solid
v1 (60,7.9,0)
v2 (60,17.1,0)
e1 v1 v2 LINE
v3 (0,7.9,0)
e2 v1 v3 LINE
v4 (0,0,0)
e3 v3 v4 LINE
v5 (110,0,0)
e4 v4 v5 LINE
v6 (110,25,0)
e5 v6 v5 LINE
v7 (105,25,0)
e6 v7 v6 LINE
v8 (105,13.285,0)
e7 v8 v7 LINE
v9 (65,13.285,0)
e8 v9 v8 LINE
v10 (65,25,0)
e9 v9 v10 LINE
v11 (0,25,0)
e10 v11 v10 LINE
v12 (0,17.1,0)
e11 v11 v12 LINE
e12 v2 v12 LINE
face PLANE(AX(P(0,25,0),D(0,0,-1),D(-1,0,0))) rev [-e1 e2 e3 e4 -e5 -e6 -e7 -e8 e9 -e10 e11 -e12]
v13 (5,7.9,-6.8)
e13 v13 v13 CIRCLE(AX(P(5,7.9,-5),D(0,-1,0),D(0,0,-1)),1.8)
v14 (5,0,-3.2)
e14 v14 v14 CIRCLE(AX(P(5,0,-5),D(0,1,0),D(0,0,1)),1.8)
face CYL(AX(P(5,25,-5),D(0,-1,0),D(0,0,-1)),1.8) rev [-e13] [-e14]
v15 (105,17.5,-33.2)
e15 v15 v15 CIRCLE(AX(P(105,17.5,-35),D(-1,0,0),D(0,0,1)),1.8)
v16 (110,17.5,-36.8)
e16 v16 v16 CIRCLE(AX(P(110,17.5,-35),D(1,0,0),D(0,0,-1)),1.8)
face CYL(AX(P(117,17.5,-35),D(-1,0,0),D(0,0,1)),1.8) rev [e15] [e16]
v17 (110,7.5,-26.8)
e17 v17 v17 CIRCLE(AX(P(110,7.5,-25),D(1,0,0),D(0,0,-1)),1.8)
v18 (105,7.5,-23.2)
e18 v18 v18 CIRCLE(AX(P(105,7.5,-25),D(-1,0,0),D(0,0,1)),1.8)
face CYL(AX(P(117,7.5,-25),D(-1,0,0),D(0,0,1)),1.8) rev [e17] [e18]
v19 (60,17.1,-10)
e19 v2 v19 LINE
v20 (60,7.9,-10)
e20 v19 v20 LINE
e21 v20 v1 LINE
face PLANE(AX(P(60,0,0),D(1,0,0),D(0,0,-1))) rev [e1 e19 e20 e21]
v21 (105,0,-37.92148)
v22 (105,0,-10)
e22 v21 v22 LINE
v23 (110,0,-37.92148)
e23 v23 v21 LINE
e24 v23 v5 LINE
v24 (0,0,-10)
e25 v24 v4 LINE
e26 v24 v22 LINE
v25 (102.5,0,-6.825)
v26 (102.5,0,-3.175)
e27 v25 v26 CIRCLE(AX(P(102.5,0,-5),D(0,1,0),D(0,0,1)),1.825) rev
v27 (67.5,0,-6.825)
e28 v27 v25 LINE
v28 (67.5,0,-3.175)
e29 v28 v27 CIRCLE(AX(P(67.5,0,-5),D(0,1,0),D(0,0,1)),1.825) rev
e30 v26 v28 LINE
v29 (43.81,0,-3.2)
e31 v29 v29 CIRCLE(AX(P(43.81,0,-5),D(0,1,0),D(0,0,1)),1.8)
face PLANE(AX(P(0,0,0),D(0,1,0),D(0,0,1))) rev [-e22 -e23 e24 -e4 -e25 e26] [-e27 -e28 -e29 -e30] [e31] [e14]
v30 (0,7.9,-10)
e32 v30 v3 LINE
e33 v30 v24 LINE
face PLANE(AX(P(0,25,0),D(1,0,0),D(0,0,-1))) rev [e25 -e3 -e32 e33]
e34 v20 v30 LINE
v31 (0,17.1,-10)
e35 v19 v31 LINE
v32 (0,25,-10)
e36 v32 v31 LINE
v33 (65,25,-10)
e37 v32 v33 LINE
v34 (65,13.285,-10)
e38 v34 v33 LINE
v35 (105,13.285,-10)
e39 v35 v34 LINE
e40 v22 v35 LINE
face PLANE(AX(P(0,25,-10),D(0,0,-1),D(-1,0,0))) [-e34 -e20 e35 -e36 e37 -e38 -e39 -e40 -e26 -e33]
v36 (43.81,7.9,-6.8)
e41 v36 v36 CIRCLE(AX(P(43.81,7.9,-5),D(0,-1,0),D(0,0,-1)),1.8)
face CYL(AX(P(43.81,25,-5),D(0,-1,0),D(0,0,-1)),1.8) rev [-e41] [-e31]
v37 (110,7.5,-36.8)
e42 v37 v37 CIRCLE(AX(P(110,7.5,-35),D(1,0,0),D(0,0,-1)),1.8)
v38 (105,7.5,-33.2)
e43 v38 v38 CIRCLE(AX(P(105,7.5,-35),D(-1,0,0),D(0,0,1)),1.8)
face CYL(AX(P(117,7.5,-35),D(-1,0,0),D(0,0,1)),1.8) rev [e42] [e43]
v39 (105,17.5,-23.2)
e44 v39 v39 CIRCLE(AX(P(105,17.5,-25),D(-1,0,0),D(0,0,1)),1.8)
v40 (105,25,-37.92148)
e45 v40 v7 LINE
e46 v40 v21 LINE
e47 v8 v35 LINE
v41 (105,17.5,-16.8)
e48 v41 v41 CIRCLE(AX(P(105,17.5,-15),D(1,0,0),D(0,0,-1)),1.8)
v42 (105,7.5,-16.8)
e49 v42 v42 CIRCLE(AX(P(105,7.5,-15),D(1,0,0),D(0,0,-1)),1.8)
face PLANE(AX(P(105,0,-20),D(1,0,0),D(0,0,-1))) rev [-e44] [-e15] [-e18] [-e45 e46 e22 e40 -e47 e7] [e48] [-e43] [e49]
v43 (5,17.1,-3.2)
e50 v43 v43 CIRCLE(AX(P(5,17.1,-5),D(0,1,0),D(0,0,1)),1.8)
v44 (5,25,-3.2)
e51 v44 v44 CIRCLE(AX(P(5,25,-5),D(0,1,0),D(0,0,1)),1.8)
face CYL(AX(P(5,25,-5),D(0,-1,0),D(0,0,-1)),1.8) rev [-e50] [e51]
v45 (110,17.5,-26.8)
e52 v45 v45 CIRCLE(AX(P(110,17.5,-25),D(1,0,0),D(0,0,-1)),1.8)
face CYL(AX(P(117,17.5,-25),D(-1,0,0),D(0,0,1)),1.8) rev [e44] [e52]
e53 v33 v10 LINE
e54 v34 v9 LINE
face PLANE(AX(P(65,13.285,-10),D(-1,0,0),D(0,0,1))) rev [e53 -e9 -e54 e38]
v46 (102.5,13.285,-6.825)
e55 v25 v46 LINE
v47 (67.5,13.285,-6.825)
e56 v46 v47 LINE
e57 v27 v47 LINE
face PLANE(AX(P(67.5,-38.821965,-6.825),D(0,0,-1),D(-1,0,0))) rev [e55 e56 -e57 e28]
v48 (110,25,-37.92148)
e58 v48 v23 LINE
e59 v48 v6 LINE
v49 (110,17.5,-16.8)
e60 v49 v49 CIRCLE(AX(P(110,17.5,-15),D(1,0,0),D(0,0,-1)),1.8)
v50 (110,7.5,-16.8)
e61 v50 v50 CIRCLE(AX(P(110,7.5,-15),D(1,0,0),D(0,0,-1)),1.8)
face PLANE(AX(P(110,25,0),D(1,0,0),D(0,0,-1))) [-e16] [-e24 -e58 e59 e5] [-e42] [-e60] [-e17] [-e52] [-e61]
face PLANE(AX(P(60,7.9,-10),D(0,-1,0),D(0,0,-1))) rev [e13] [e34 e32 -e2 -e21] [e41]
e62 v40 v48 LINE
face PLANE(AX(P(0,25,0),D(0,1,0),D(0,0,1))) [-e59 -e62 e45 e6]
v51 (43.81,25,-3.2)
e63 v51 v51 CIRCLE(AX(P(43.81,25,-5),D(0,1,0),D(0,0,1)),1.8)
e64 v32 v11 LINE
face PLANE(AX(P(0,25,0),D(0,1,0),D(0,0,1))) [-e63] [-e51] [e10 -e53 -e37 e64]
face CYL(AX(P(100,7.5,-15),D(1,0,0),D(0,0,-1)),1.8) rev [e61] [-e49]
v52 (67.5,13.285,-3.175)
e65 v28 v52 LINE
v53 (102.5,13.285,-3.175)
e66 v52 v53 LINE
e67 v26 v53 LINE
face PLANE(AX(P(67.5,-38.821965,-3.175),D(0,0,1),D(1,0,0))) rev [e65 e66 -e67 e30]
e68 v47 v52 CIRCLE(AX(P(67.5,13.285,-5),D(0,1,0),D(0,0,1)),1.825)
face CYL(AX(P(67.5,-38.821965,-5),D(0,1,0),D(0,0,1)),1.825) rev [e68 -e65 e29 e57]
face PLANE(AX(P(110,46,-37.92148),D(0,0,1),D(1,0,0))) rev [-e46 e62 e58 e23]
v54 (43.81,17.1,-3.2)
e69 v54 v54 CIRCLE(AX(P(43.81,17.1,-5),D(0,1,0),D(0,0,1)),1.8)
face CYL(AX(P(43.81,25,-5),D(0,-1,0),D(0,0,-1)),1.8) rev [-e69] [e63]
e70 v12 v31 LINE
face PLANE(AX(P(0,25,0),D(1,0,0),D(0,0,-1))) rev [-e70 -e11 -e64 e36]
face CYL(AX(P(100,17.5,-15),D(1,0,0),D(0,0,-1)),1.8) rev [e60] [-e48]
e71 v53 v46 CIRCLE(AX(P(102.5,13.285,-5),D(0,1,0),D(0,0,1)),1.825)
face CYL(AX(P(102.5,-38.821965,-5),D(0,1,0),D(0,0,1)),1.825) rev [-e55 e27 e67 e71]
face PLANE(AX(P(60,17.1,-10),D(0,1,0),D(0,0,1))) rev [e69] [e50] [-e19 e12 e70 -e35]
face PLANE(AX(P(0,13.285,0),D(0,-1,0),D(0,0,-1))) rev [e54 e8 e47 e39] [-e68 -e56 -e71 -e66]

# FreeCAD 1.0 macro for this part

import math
import FreeCAD as App
import Part
import Sketcher

doc = App.newDocument("Part")
body = doc.addObject("PartDesign::Body", "Body")

# Sketch on XZ plane
sketch1 = doc.addObject("Sketcher::SketchObject", "Sketch")
body.addObject(sketch1)
sketch1.AttachmentSupport = (doc.XZ_Plane, [""])
sketch1.MapMode = "FlatFace"
sketch1.addGeometry([
    Part.LineSegment(App.Vector(0, -10, 0), App.Vector(0, 0, 0)),  # 0
    Part.LineSegment(App.Vector(0, 0, 0), App.Vector(110, 0, 0)),  # 1
    Part.LineSegment(App.Vector(110, 0, 0), App.Vector(110, -10, 0)),  # 2
    Part.LineSegment(App.Vector(110, -10, 0), App.Vector(0, -10, 0)),  # 3
    Part.Circle(App.Vector(5, -5, 0), App.Vector(0, 0, 1), 1.8),  # 4
    Part.Circle(App.Vector(43.8, -5, 0), App.Vector(0, 0, 1), 1.8),  # 5
], False)
sketch1.addConstraint([
    Sketcher.Constraint("Coincident", 0, 2, 1, 1),
    Sketcher.Constraint("Coincident", 1, 2, 2, 1),
    Sketcher.Constraint("Coincident", 2, 2, 3, 1),
    Sketcher.Constraint("Coincident", 3, 2, 0, 1),
    Sketcher.Constraint("Vertical", 0),
    Sketcher.Constraint("Horizontal", 1),
    Sketcher.Constraint("Vertical", 2),
    Sketcher.Constraint("Horizontal", 3),
    Sketcher.Constraint("Coincident", 0, 2, -1, 1),
    Sketcher.Constraint("Equal", 4, 5),
    Sketcher.Constraint("Horizontal", 4, 3, 5, 3),
    Sketcher.Constraint("Diameter", 4, 3.6),
    Sketcher.Constraint("DistanceX", 1, 1, 1, 2, 110.0),
    Sketcher.Constraint("DistanceY", 0, 1, 0, 2, 10.0),
    Sketcher.Constraint("DistanceX", -1, 1, 4, 3, 5.0),
    Sketcher.Constraint("DistanceY", 4, 3, -1, 1, 5.0),
    Sketcher.Constraint("DistanceX", -1, 1, 5, 3, 43.81),
])
pad1 = doc.addObject("PartDesign::Pad", "Pad")
body.addObject(pad1)
pad1.Profile = sketch1
pad1.Length = 25
pad1.Reversed = True

# Sketch on YZ plane
sketch2 = doc.addObject("Sketcher::SketchObject", "Sketch001")
body.addObject(sketch2)
sketch2.AttachmentSupport = (doc.YZ_Plane, [""])
sketch2.MapMode = "FlatFace"
sketch2.addGeometry([
    Part.LineSegment(App.Vector(17, -10, 0), App.Vector(8, -10, 0)),
    Part.LineSegment(App.Vector(8, -10, 0), App.Vector(8, 0, 0)),
    Part.LineSegment(App.Vector(8, 0, 0), App.Vector(17, 0, 0)),
    Part.LineSegment(App.Vector(17, 0, 0), App.Vector(17, -10, 0)),
], False)
sketch2.addConstraint([
    Sketcher.Constraint("Coincident", 0, 2, 1, 1),
    Sketcher.Constraint("Coincident", 1, 2, 2, 1),
    Sketcher.Constraint("Coincident", 2, 2, 3, 1),
    Sketcher.Constraint("Coincident", 3, 2, 0, 1),
    Sketcher.Constraint("Horizontal", 0),
    Sketcher.Constraint("Vertical", 1),
    Sketcher.Constraint("Horizontal", 2),
    Sketcher.Constraint("Vertical", 3),
    Sketcher.Constraint("PointOnObject", 1, 2, -1),
    Sketcher.Constraint("DistanceY", 1, 1, 1, 2, 10.0),
    Sketcher.Constraint("DistanceX", 0, 2, 0, 1, 9.2),
    Sketcher.Constraint("DistanceX", -1, 1, 0, 2, 7.9),
])
pocket1 = doc.addObject("PartDesign::Pocket", "Pocket")
body.addObject(pocket1)
pocket1.Profile = sketch2
pocket1.Length = 60
pocket1.Reversed = True

# Sketch on XY plane
sketch3 = doc.addObject("Sketcher::SketchObject", "Sketch002")
body.addObject(sketch3)
sketch3.AttachmentSupport = (doc.XY_Plane, [""])
sketch3.MapMode = "FlatFace"
sketch3.AttachmentOffset = App.Placement(App.Vector(0, 0, -10), App.Rotation())
sketch3.addGeometry([
    Part.LineSegment(App.Vector(110, 25, 0), App.Vector(110, 0, 0)),
    Part.LineSegment(App.Vector(110, 0, 0), App.Vector(105, 0, 0)),
    Part.LineSegment(App.Vector(105, 0, 0), App.Vector(105, 25, 0)),
    Part.LineSegment(App.Vector(105, 25, 0), App.Vector(110, 25, 0)),
], False)
sketch3.addConstraint([
    Sketcher.Constraint("Coincident", 0, 2, 1, 1),
    Sketcher.Constraint("Coincident", 1, 2, 2, 1),
    Sketcher.Constraint("Coincident", 2, 2, 3, 1),
    Sketcher.Constraint("Coincident", 3, 2, 0, 1),
    Sketcher.Constraint("Vertical", 0),
    Sketcher.Constraint("Horizontal", 1),
    Sketcher.Constraint("Vertical", 2),
    Sketcher.Constraint("Horizontal", 3),
    Sketcher.Constraint("PointOnObject", 0, 2, -1),
    Sketcher.Constraint("DistanceX", 1, 2, 1, 1, 5.0),
    Sketcher.Constraint("DistanceY", 0, 2, 0, 1, 25.0),
    Sketcher.Constraint("DistanceX", -1, 1, 0, 2, 110.0),
])
pad2 = doc.addObject("PartDesign::Pad", "Pad001")
body.addObject(pad2)
pad2.Profile = sketch3
pad2.Length = 10
pad2.Reversed = True

# Sketch on YZ plane
sketch4 = doc.addObject("Sketcher::SketchObject", "Sketch003")
body.addObject(sketch4)
sketch4.AttachmentSupport = (doc.YZ_Plane, [""])
sketch4.MapMode = "FlatFace"
sketch4.AttachmentOffset = App.Placement(App.Vector(0, 0, 110), App.Rotation())
sketch4.addGeometry([
    Part.Circle(App.Vector(7.5, -15, 0), App.Vector(0, 0, 1), 1.8),
    Part.Circle(App.Vector(17.5, -15, 0), App.Vector(0, 0, 1), 1.8),
], False)
sketch4.addConstraint([
    Sketcher.Constraint("Equal", 0, 1),
    Sketcher.Constraint("Horizontal", 0, 3, 1, 3),
    Sketcher.Constraint("Diameter", 0, 3.6),
    Sketcher.Constraint("DistanceY", 0, 3, -1, 1, 15.0),
    Sketcher.Constraint("DistanceX", 0, 3, 1, 3, 10.0),
    Sketcher.Constraint("DistanceX", -1, 1, 0, 3, 7.5),
])
pocket2 = doc.addObject("PartDesign::Pocket", "Pocket001")
body.addObject(pocket2)
pocket2.Profile = sketch4
pocket2.Length = 10

# Sketch on XY plane
sketch5 = doc.addObject("Sketcher::SketchObject", "Sketch004")
body.addObject(sketch5)
sketch5.AttachmentSupport = (doc.XY_Plane, [""])
sketch5.MapMode = "FlatFace"
sketch5.AttachmentOffset = App.Placement(App.Vector(0, 0, -20), App.Rotation())
sketch5.addGeometry([
    Part.LineSegment(App.Vector(110, 25, 0), App.Vector(110, 0, 0)),
    Part.LineSegment(App.Vector(110, 0, 0), App.Vector(105, 0, 0)),
    Part.LineSegment(App.Vector(105, 0, 0), App.Vector(105, 25, 0)),
    Part.LineSegment(App.Vector(105, 25, 0), App.Vector(110, 25, 0)),
], False)
sketch5.addConstraint([
    Sketcher.Constraint("Coincident", 0, 2, 1, 1),
    Sketcher.Constraint("Coincident", 1, 2, 2, 1),
    Sketcher.Constraint("Coincident", 2, 2, 3, 1),
    Sketcher.Constraint("Coincident", 3, 2, 0, 1),
    Sketcher.Constraint("Vertical", 0),
    Sketcher.Constraint("Horizontal", 1),
    Sketcher.Constraint("Vertical", 2),
    Sketcher.Constraint("Horizontal", 3),
    Sketcher.Constraint("PointOnObject", 0, 2, -1),
    Sketcher.Constraint("DistanceX", 1, 2, 1, 1, 5.0),
    Sketcher.Constraint("DistanceY", 0, 2, 0, 1, 25.0),
    Sketcher.Constraint("DistanceX", -1, 1, 0, 2, 110.0),
])
pad3 = doc.addObject("PartDesign::Pad", "Pad002")
body.addObject(pad3)
pad3.Profile = sketch5
pad3.Length = 20
pad3.Reversed = True

# Sketch on YZ plane
sketch6 = doc.addObject("Sketcher::SketchObject", "Sketch005")
body.addObject(sketch6)
sketch6.AttachmentSupport = (doc.YZ_Plane, [""])
sketch6.MapMode = "FlatFace"
sketch6.AttachmentOffset = App.Placement(App.Vector(0, 0, 105), App.Rotation())
sketch6.addGeometry([
    Part.Circle(App.Vector(17.5, -25, 0), App.Vector(0, 0, 1), 1.8),
    Part.Circle(App.Vector(7.5, -25, 0), App.Vector(0, 0, 1), 1.8),
    Part.Circle(App.Vector(17.5, -35, 0), App.Vector(0, 0, 1), 1.8),
    Part.Circle(App.Vector(7.5, -35, 0), App.Vector(0, 0, 1), 1.8),
], False)
sketch6.addConstraint([
    Sketcher.Constraint("Equal", 0, 1),
    Sketcher.Constraint("Equal", 1, 2),
    Sketcher.Constraint("Equal", 2, 3),
    Sketcher.Constraint("Horizontal", 0, 3, 1, 3),
    Sketcher.Constraint("Horizontal", 2, 3, 3, 3),
    Sketcher.Constraint("Vertical", 0, 3, 2, 3),
    Sketcher.Constraint("Vertical", 1, 3, 3, 3),
    Sketcher.Constraint("Diameter", 0, 3.6),
    Sketcher.Constraint("DistanceY", 0, 3, -1, 1, 25.0),
    Sketcher.Constraint("DistanceY", 2, 3, -1, 1, 35.0),
    Sketcher.Constraint("DistanceX", 1, 3, 0, 3, 10.0),
    Sketcher.Constraint("DistanceX", -1, 1, 0, 3, 17.5),
])
pocket3 = doc.addObject("PartDesign::Pocket", "Pocket002")
body.addObject(pocket3)
pocket3.Profile = sketch6
pocket3.Length = 12
pocket3.Reversed = True

# Sketch on XZ plane
sketch7 = doc.addObject("Sketcher::SketchObject", "Sketch006")
body.addObject(sketch7)
sketch7.AttachmentSupport = (doc.XZ_Plane, [""])
sketch7.MapMode = "FlatFace"
sketch7.addGeometry([
    Part.LineSegment(App.Vector(105, -37.9, 0), App.Vector(105, -40, 0)),
    Part.LineSegment(App.Vector(105, -40, 0), App.Vector(110, -40, 0)),
    Part.LineSegment(App.Vector(110, -40, 0), App.Vector(110, -37.9, 0)),
    Part.LineSegment(App.Vector(110, -37.9, 0), App.Vector(105, -37.9, 0)),
], False)
sketch7.addConstraint([
    Sketcher.Constraint("Coincident", 0, 2, 1, 1),
    Sketcher.Constraint("Coincident", 1, 2, 2, 1),
    Sketcher.Constraint("Coincident", 2, 2, 3, 1),
    Sketcher.Constraint("Coincident", 3, 2, 0, 1),
    Sketcher.Constraint("Vertical", 0),
    Sketcher.Constraint("Horizontal", 1),
    Sketcher.Constraint("Vertical", 2),
    Sketcher.Constraint("Horizontal", 3),
    Sketcher.Constraint("DistanceX", 1, 1, 1, 2, 5.0),
    Sketcher.Constraint("DistanceX", -1, 1, 0, 2, 105.0),
    Sketcher.Constraint("DistanceY", 0, 2, -1, 1, 40.0),
    Sketcher.Constraint("DistanceY", 0, 2, 0, 1, 2.07852),
])
pocket4 = doc.addObject("PartDesign::Pocket", "Pocket003")
body.addObject(pocket4)
pocket4.Profile = sketch7
pocket4.Length = 46

# Sketch on XZ plane
sketch8 = doc.addObject("Sketcher::SketchObject", "Sketch007")
body.addObject(sketch8)
sketch8.AttachmentSupport = (doc.XZ_Plane, [""])
sketch8.MapMode = "FlatFace"
sketch8.AttachmentOffset = App.Placement(App.Vector(0, 0, -25), App.Rotation())
sketch8.addGeometry([
    Part.LineSegment(App.Vector(65, -10, 0), App.Vector(65, 0, 0)),
    Part.LineSegment(App.Vector(65, 0, 0), App.Vector(105, 0, 0)),
    Part.LineSegment(App.Vector(105, 0, 0), App.Vector(105, -10, 0)),
    Part.LineSegment(App.Vector(105, -10, 0), App.Vector(65, -10, 0)),
], False)
sketch8.addConstraint([
    Sketcher.Constraint("Coincident", 0, 2, 1, 1),
    Sketcher.Constraint("Coincident", 1, 2, 2, 1),
    Sketcher.Constraint("Coincident", 2, 2, 3, 1),
    Sketcher.Constraint("Coincident", 3, 2, 0, 1),
    Sketcher.Constraint("Vertical", 0),
    Sketcher.Constraint("Horizontal", 1),
    Sketcher.Constraint("Vertical", 2),
    Sketcher.Constraint("Horizontal", 3),
    Sketcher.Constraint("PointOnObject", 0, 2, -1),
    Sketcher.Constraint("DistanceX", 1, 1, 1, 2, 40.0),
    Sketcher.Constraint("DistanceY", 0, 1, 0, 2, 10.0),
    Sketcher.Constraint("DistanceX", -1, 1, 0, 2, 65.0),
])
pocket5 = doc.addObject("PartDesign::Pocket", "Pocket004")
body.addObject(pocket5)
pocket5.Profile = sketch8
pocket5.Length = 11.715
pocket5.Reversed = True

# Sketch on XZ plane
sketch9 = doc.addObject("Sketcher::SketchObject", "Sketch008")
body.addObject(sketch9)
sketch9.AttachmentSupport = (doc.XZ_Plane, [""])
sketch9.MapMode = "FlatFace"
sketch9.AttachmentOffset = App.Placement(App.Vector(0, 0, -13.285), App.Rotation())
sketch9.addGeometry([
    Part.LineSegment(App.Vector(102.5, -6.8, 0), App.Vector(67.5, -6.8, 0)),
    Part.ArcOfCircle(Part.Circle(App.Vector(67.5, -5, 0), App.Vector(0, 0, 1), 1.8), math.radians(90), math.radians(270)),
    Part.LineSegment(App.Vector(67.5, -3.2, 0), App.Vector(102.5, -3.2, 0)),
    Part.ArcOfCircle(Part.Circle(App.Vector(102.5, -5, 0), App.Vector(0, 0, 1), 1.8), math.radians(-90), math.radians(90)),
], False)
sketch9.addConstraint([
    Sketcher.Constraint("Tangent", 0, 2, 1, 2),
    Sketcher.Constraint("Tangent", 1, 1, 2, 1),
    Sketcher.Constraint("Tangent", 2, 2, 3, 2),
    Sketcher.Constraint("Tangent", 3, 1, 0, 1),
    Sketcher.Constraint("Horizontal", 0),
    Sketcher.Constraint("Horizontal", 2),
    Sketcher.Constraint("DistanceX", 0, 2, 0, 1, 35.0),
    Sketcher.Constraint("DistanceY", 1, 3, -1, 1, 5.0),
    Sketcher.Constraint("Radius", 1, 1.825),
    Sketcher.Constraint("DistanceX", -1, 1, 1, 3, 67.5),
])
pocket6 = doc.addObject("PartDesign::Pocket", "Pocket005")
body.addObject(pocket6)
pocket6.Profile = sketch9
pocket6.Length = 13.285
pocket6.Reversed = True

doc.recompute()
